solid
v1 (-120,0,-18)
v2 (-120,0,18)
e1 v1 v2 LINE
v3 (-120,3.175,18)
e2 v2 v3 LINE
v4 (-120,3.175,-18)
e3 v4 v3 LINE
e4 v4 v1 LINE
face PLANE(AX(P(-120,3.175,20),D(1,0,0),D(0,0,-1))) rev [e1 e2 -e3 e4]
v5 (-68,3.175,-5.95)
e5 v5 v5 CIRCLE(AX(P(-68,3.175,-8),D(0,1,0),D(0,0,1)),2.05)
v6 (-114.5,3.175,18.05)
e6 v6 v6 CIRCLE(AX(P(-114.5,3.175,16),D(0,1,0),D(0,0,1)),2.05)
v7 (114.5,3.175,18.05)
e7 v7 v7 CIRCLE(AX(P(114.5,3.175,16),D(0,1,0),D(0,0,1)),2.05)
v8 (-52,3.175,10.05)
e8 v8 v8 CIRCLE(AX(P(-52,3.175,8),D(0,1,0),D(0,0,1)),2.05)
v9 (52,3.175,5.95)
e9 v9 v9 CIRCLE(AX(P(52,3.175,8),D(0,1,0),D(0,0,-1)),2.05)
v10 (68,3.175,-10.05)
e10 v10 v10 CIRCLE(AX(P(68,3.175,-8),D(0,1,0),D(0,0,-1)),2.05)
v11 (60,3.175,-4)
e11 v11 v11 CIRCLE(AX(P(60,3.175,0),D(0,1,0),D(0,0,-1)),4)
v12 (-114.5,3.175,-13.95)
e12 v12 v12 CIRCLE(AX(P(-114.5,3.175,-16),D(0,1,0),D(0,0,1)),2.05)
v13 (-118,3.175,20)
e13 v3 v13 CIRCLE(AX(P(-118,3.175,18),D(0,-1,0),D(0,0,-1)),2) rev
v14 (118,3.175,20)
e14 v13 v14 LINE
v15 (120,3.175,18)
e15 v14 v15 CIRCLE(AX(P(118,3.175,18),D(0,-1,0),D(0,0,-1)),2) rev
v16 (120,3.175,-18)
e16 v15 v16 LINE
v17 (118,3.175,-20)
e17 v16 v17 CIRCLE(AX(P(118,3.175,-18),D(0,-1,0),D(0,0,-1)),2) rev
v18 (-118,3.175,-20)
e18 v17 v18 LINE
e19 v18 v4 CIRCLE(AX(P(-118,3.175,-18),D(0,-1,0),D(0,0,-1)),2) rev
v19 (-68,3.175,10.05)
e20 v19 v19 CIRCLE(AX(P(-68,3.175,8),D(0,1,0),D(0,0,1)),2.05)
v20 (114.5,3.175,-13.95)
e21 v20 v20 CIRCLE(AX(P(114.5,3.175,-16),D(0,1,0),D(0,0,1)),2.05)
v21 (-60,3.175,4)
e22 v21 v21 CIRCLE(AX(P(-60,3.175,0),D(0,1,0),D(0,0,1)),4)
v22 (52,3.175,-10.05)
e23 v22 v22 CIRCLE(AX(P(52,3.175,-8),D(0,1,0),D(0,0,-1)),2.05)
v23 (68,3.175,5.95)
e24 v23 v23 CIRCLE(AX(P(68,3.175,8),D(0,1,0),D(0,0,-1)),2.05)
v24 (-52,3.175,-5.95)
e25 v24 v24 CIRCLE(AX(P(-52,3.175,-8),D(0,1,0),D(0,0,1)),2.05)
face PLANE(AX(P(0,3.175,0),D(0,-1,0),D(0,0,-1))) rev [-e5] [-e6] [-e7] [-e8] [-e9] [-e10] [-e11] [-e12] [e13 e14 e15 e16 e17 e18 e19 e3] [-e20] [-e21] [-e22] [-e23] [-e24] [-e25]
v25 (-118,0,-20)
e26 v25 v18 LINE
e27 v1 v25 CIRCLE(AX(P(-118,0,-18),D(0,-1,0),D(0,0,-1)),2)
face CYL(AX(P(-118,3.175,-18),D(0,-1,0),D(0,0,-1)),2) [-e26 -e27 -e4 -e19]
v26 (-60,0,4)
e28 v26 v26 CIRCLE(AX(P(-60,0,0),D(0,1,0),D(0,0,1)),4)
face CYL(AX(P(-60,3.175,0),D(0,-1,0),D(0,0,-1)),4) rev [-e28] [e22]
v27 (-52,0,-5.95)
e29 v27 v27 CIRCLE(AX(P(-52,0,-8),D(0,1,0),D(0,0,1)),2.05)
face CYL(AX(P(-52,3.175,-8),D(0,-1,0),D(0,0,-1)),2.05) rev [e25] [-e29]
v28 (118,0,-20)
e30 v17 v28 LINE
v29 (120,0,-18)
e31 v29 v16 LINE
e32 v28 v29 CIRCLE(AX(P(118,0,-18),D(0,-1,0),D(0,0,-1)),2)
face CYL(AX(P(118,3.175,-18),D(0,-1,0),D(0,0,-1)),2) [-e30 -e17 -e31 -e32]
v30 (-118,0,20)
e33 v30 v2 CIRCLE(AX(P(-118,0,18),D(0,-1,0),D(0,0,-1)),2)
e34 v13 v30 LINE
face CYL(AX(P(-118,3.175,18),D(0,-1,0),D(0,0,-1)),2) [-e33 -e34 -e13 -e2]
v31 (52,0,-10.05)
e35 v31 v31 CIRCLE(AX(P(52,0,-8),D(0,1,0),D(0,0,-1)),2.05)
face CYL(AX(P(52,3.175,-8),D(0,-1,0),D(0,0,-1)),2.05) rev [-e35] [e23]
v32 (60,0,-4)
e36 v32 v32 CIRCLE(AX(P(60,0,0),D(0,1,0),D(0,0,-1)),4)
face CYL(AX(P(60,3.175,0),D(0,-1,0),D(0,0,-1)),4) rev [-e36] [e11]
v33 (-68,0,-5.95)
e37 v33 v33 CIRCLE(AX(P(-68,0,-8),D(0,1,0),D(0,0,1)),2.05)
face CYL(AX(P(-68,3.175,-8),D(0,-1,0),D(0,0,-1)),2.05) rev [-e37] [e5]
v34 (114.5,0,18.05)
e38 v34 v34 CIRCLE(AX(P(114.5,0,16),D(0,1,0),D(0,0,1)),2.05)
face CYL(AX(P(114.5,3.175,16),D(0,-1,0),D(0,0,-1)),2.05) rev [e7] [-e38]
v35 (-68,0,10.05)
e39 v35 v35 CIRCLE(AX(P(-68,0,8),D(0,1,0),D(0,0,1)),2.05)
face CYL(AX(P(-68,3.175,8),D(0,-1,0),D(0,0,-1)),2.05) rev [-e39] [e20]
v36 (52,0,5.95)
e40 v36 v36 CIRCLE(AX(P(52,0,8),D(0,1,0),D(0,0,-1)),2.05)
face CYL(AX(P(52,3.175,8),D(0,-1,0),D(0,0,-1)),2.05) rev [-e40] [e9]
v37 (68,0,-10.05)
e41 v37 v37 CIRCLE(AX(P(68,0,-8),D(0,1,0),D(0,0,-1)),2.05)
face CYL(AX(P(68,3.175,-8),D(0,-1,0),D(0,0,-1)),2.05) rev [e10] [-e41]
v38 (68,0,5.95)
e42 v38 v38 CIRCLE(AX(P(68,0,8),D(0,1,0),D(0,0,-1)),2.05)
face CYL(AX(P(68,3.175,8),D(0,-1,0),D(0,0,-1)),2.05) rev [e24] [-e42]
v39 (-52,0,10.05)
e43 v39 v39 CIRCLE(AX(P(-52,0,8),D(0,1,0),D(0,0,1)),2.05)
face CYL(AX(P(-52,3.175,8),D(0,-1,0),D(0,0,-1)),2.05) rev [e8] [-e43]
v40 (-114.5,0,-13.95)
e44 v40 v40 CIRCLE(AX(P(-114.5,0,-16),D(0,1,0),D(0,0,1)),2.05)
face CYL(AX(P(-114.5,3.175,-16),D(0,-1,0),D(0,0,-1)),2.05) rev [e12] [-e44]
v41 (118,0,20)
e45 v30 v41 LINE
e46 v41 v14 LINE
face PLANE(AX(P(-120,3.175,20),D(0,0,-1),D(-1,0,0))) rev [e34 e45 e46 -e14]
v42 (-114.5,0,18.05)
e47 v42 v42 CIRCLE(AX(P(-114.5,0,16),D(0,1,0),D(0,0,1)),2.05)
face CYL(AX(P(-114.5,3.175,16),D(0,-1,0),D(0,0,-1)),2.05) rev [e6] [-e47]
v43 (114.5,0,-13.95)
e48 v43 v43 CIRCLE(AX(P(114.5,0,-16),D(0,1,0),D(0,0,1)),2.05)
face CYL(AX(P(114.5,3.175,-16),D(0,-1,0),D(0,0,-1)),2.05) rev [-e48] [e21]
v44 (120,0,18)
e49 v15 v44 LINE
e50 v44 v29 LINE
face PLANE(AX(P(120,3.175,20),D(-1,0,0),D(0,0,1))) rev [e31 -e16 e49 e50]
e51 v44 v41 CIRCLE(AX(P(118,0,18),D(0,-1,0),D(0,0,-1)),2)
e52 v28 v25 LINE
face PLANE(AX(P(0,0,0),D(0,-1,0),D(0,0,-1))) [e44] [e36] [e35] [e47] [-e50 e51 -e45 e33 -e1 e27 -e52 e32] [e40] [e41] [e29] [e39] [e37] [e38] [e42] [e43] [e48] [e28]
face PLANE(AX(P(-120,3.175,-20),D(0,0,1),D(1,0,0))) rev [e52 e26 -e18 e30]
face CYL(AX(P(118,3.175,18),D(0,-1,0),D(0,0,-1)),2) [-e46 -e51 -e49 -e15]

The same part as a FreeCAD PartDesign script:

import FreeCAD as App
import Part
import Sketcher
from FreeCAD import Vector
Q = App.Units.Quantity


def edges_at(feature, points):
    """Names of the edges that pass closest to the given points."""
    edges = feature.Shape.Edges
    near = lambda p: min(range(len(edges)), key=lambda i: edges[i].distToShape(Part.Vertex(*p))[0])
    return sorted({f"Edge{near(p) + 1}" for p in points})

doc = App.newDocument("Part")
params = doc.addObject("Spreadsheet::Sheet", "Params")
for row, (alias, value) in enumerate([
    ("sketch1_diameter", "8 mm"),
    ("sketch1_diameter2", "4.1 mm"),
    ("sketch1_width", "240 mm"),
    ("sketch1_height", "40 mm"),
    ("pad1_length", "3.175 mm"),
    ("fillet_radius", "2 mm"),
], start=1):
    params.set(f"A{row}", alias)
    params.set(f"B{row}", "=" + value)
    params.setAlias(f"B{row}", alias)

body = doc.addObject("PartDesign::Body", "Body")

sketch1 = body.newObject("Sketcher::SketchObject", "Sketch")
sketch1.AttachmentSupport = (doc.getObject("XZ_Plane"), [""])
sketch1.MapMode = "FlatFace"
sketch1.addGeometry([
    Part.LineSegment(Vector(-120, -20, 0), Vector(-120, 20, 0)),
    Part.LineSegment(Vector(-120, 20, 0), Vector(120, 20, 0)),
    Part.LineSegment(Vector(120, 20, 0), Vector(120, -20, 0)),
    Part.LineSegment(Vector(120, -20, 0), Vector(-120, -20, 0)),
    Part.Circle(Vector(-114.5, 16, 0), Vector(0, 0, 1), 2),
    Part.Circle(Vector(-68, 8, 0), Vector(0, 0, 1), 2),
    Part.Circle(Vector(-52, 8, 0), Vector(0, 0, 1), 2),
    Part.Circle(Vector(114.5, 16, 0), Vector(0, 0, 1), 2),
    Part.Circle(Vector(52, 8, 0), Vector(0, 0, 1), 2),
    Part.Circle(Vector(68, 8, 0), Vector(0, 0, 1), 2),
    Part.Circle(Vector(-60, 0, 0), Vector(0, 0, 1), 4),
    Part.Circle(Vector(-68, -8, 0), Vector(0, 0, 1), 2),
    Part.Circle(Vector(-52, -8, 0), Vector(0, 0, 1), 2),
    Part.Circle(Vector(-114.5, -16, 0), Vector(0, 0, 1), 2),
    Part.Circle(Vector(52, -8, 0), Vector(0, 0, 1), 2),
    Part.Circle(Vector(60, 0, 0), Vector(0, 0, 1), 4),
    Part.Circle(Vector(68, -8, 0), Vector(0, 0, 1), 2),
    Part.Circle(Vector(114.5, -16, 0), Vector(0, 0, 1), 2),
], False)
sketch1.addConstraint([
    Sketcher.Constraint("Coincident", 0, 2, 1, 1),
    Sketcher.Constraint("Coincident", 1, 2, 2, 1),
    Sketcher.Constraint("Coincident", 2, 2, 3, 1),
    Sketcher.Constraint("Coincident", 3, 2, 0, 1),
    Sketcher.Constraint("Vertical", 0),
    Sketcher.Constraint("Horizontal", 1),
    Sketcher.Constraint("Vertical", 2),
    Sketcher.Constraint("Horizontal", 3),
    Sketcher.Constraint("Equal", 4, 5),
    Sketcher.Constraint("Equal", 5, 6),
    Sketcher.Constraint("Equal", 6, 7),
    Sketcher.Constraint("Equal", 7, 8),
    Sketcher.Constraint("Equal", 8, 9),
    Sketcher.Constraint("Equal", 9, 11),
    Sketcher.Constraint("Equal", 11, 12),
    Sketcher.Constraint("Equal", 12, 13),
    Sketcher.Constraint("Equal", 13, 14),
    Sketcher.Constraint("Equal", 10, 15),
    Sketcher.Constraint("Equal", 14, 16),
    Sketcher.Constraint("Equal", 16, 17),
    Sketcher.Constraint("Symmetric", 9, 3, 11, 3, -1, 1),
    Sketcher.Constraint("Symmetric", 8, 3, 12, 3, -1, 1),
    Sketcher.Constraint("Symmetric", 7, 3, 13, 3, -1, 1),
    Sketcher.Constraint("Symmetric", 6, 3, 14, 3, -1, 1),
    Sketcher.Constraint("Symmetric", 10, 3, 15, 3, -1, 1),
    Sketcher.Constraint("Symmetric", 5, 3, 16, 3, -1, 1),
    Sketcher.Constraint("Symmetric", 4, 3, 17, 3, -1, 1),
    Sketcher.Constraint("Symmetric", 0, 2, 2, 2, -1, 1),
    Sketcher.Constraint("Symmetric", 4, 3, 7, 3, -2),
    Sketcher.Constraint("Symmetric", 6, 3, 8, 3, -2),
    Sketcher.Constraint("Symmetric", 5, 3, 9, 3, -2),
    Sketcher.Constraint("PointOnObject", 10, 3, -1),
    Sketcher.Constraint("Horizontal", 5, 3, 6, 3),
    Sketcher.Constraint("Diameter", 10, Q("8 mm")),
    Sketcher.Constraint("Diameter", 4, Q("4.1 mm")),
    Sketcher.Constraint("DistanceX", 1, 1, 1, 2, Q("240 mm")),
    Sketcher.Constraint("DistanceY", 0, 1, 0, 2, Q("40 mm")),
    Sketcher.Constraint("DistanceY", -1, 1, 4, 3, Q("16 mm")),
    Sketcher.Constraint("DistanceX", 5, 3, -1, 1, Q("68 mm")),
    Sketcher.Constraint("DistanceY", -1, 1, 5, 3, Q("8 mm")),
    Sketcher.Constraint("DistanceX", 6, 3, -1, 1, Q("52 mm")),
    Sketcher.Constraint("DistanceX", 10, 3, -1, 1, Q("60 mm")),
    Sketcher.Constraint("DistanceX", 4, 3, 7, 3, Q("229 mm")),
])
sketch1.setExpression("Constraints[33]", "Params.sketch1_diameter")
sketch1.setExpression("Constraints[34]", "Params.sketch1_diameter2")
sketch1.setExpression("Constraints[35]", "Params.sketch1_width")
sketch1.setExpression("Constraints[36]", "Params.sketch1_height")
pad1 = body.newObject("PartDesign::Pad", "Pad")
pad1.Profile = sketch1
pad1.setExpression("Length", "Params.pad1_length")
pad1.Reversed = True
doc.recompute()

fillet = body.newObject("PartDesign::Fillet", "Fillet")
fillet.Base = (pad1, edges_at(pad1, [
    (120, 1.587, 20),
    (-120, 1.587, 20),
    (-120, 1.587, -20),
    (120, 1.587, -20),
]))
fillet.setExpression("Radius", "Params.fillet_radius")

doc.recompute()
